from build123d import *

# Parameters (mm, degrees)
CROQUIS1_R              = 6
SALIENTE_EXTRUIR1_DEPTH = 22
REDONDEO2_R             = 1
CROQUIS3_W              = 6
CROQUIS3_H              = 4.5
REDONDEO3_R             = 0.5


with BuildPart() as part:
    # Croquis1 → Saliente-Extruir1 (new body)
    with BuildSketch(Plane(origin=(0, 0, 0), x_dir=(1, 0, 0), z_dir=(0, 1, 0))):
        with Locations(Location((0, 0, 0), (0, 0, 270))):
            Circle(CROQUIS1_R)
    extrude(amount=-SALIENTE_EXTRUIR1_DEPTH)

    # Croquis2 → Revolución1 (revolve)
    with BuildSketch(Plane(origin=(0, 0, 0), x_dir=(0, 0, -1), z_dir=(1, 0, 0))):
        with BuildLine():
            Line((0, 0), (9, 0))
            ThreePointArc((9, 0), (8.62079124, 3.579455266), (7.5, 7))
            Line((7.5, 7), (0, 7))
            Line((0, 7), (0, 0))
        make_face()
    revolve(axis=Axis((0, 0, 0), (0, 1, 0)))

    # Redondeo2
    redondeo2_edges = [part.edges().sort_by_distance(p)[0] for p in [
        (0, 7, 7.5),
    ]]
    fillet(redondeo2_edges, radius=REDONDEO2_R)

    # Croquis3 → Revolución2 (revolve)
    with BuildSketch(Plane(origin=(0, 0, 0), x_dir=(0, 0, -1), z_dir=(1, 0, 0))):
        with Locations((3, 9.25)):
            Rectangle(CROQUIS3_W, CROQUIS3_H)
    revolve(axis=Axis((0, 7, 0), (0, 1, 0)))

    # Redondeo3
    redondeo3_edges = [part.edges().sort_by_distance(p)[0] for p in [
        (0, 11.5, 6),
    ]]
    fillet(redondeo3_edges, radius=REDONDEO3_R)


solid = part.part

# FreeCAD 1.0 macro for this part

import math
import FreeCAD as App
import Part
import Sketcher
from FreeCAD import Vector
Q = App.Units.Quantity


def edges_at(feature, points):
    """Names of the edges that pass closest to the given points."""
    edges = feature.Shape.Edges
    near = lambda p: min(range(len(edges)), key=lambda i: edges[i].distToShape(Part.Vertex(*p))[0])
    return sorted({f"Edge{near(p) + 1}" for p in points})

doc = App.newDocument("Part")
params = doc.addObject("Spreadsheet::Sheet", "Params")
for row, (alias, value) in enumerate([
    ("sketch1_diameter", "12 mm"),
    ("pad1_length", "22 mm"),
    ("sketch2_width", "7 mm"),
    ("sketch2_height", "9 mm"),
    ("sketch2_height2", "7.5 mm"),
    ("revolution_angle", "360 deg"),
    ("fillet_radius", "1 mm"),
    ("sketch3_height", "6 mm"),
    ("sketch3_width", "4.5 mm"),
    ("revolution2_angle", "360 deg"),
    ("fillet2_radius", "0.5 mm"),
], start=1):
    params.set(f"A{row}", alias)
    params.set(f"B{row}", "=" + value)
    params.setAlias(f"B{row}", alias)

body = doc.addObject("PartDesign::Body", "Body")

sketch1 = doc.addObject("Sketcher::SketchObject", "Sketch")
body.addObject(sketch1)
sketch1.AttachmentSupport = (doc.XZ_Plane, [""])
sketch1.MapMode = "FlatFace"
sketch1.addGeometry(Part.Circle(Vector(0, 0, 0), Vector(0, 0, 1), 6), False)
sketch1.addConstraint([
    Sketcher.Constraint("Coincident", 0, 3, -1, 1),
    Sketcher.Constraint("Diameter", 0, Q("12 mm")),
])
sketch1.setExpression("Constraints[1]", "Params.sketch1_diameter")
pad1 = doc.addObject("PartDesign::Pad", "Pad")
body.addObject(pad1)
pad1.Profile = sketch1
pad1.setExpression("Length", "Params.pad1_length")

sketch2 = doc.addObject("Sketcher::SketchObject", "Sketch001")
body.addObject(sketch2)
sketch2.AttachmentSupport = (doc.YZ_Plane, [""])
sketch2.MapMode = "FlatFace"
sketch2.addGeometry([
    Part.LineSegment(Vector(0, 0, 0), Vector(0, -9, 0)),
    Part.ArcOfCircle(Part.Circle(Vector(0, 8, 0), Vector(0, 0, 1), 17), math.radians(-90), math.radians(-66)),
    Part.LineSegment(Vector(7, -8, 0), Vector(7, 0, 0)),
    Part.LineSegment(Vector(7, 0, 0), Vector(0, 0, 0)),
], False)
sketch2.addConstraint([
    Sketcher.Constraint("Coincident", 0, 2, 1, 1),
    Sketcher.Constraint("Coincident", 1, 2, 2, 1),
    Sketcher.Constraint("Coincident", 2, 2, 3, 1),
    Sketcher.Constraint("Coincident", 3, 2, 0, 1),
    Sketcher.Constraint("Vertical", 0),
    Sketcher.Constraint("Vertical", 2),
    Sketcher.Constraint("Horizontal", 3),
    Sketcher.Constraint("Coincident", 3, 2, -1, 1),
    Sketcher.Constraint("PointOnObject", 1, 3, -2),
    Sketcher.Constraint("DistanceX", 3, 2, 3, 1, Q("7 mm")),
    Sketcher.Constraint("DistanceY", 0, 2, 0, 1, Q("9 mm")),
    Sketcher.Constraint("DistanceY", 2, 1, 2, 2, Q("7.5 mm")),
])
sketch2.setExpression("Constraints[9]", "Params.sketch2_width")
sketch2.setExpression("Constraints[10]", "Params.sketch2_height")
sketch2.setExpression("Constraints[11]", "Params.sketch2_height2")
revolution = doc.addObject("PartDesign::Revolution", "Revolution")
body.addObject(revolution)
revolution.Profile = sketch2
revolution.ReferenceAxis = (sketch2, ["H_Axis"])
revolution.setExpression("Angle", "Params.revolution_angle")
doc.recompute()

fillet = doc.addObject("PartDesign::Fillet", "Fillet")
body.addObject(fillet)
fillet.Base = (revolution, edges_at(revolution, [(0, 7, 7.5)]))
fillet.setExpression("Radius", "Params.fillet_radius")

sketch3 = doc.addObject("Sketcher::SketchObject", "Sketch002")
body.addObject(sketch3)
sketch3.AttachmentSupport = (doc.YZ_Plane, [""])
sketch3.MapMode = "FlatFace"
sketch3.addGeometry([
    Part.LineSegment(Vector(11.5, 0, 0), Vector(7, 0, 0)),
    Part.LineSegment(Vector(7, 0, 0), Vector(7, -6, 0)),
    Part.LineSegment(Vector(7, -6, 0), Vector(11.5, -6, 0)),
    Part.LineSegment(Vector(11.5, -6, 0), Vector(11.5, 0, 0)),
], False)
sketch3.addConstraint([
    Sketcher.Constraint("Coincident", 0, 2, 1, 1),
    Sketcher.Constraint("Coincident", 1, 2, 2, 1),
    Sketcher.Constraint("Coincident", 2, 2, 3, 1),
    Sketcher.Constraint("Coincident", 3, 2, 0, 1),
    Sketcher.Constraint("Horizontal", 0),
    Sketcher.Constraint("Vertical", 1),
    Sketcher.Constraint("Horizontal", 2),
    Sketcher.Constraint("Vertical", 3),
    Sketcher.Constraint("PointOnObject", 0, 2, -1),
    Sketcher.Constraint("DistanceY", 1, 2, 1, 1, Q("6 mm")),
    Sketcher.Constraint("DistanceX", 0, 2, 0, 1, Q("4.5 mm")),
    Sketcher.Constraint("DistanceX", -1, 1, 0, 2, Q("7 mm")),
])
sketch3.setExpression("Constraints[9]", "Params.sketch3_height")
sketch3.setExpression("Constraints[10]", "Params.sketch3_width")
revolution2 = doc.addObject("PartDesign::Revolution", "Revolution001")
body.addObject(revolution2)
revolution2.Profile = sketch3
revolution2.ReferenceAxis = (sketch3, ["H_Axis"])
revolution2.setExpression("Angle", "Params.revolution2_angle")
doc.recompute()

fillet2 = doc.addObject("PartDesign::Fillet", "Fillet001")
body.addObject(fillet2)
fillet2.Base = (revolution2, edges_at(revolution2, [(0, 11.5, 6)]))
fillet2.setExpression("Radius", "Params.fillet2_radius")

doc.recompute()
